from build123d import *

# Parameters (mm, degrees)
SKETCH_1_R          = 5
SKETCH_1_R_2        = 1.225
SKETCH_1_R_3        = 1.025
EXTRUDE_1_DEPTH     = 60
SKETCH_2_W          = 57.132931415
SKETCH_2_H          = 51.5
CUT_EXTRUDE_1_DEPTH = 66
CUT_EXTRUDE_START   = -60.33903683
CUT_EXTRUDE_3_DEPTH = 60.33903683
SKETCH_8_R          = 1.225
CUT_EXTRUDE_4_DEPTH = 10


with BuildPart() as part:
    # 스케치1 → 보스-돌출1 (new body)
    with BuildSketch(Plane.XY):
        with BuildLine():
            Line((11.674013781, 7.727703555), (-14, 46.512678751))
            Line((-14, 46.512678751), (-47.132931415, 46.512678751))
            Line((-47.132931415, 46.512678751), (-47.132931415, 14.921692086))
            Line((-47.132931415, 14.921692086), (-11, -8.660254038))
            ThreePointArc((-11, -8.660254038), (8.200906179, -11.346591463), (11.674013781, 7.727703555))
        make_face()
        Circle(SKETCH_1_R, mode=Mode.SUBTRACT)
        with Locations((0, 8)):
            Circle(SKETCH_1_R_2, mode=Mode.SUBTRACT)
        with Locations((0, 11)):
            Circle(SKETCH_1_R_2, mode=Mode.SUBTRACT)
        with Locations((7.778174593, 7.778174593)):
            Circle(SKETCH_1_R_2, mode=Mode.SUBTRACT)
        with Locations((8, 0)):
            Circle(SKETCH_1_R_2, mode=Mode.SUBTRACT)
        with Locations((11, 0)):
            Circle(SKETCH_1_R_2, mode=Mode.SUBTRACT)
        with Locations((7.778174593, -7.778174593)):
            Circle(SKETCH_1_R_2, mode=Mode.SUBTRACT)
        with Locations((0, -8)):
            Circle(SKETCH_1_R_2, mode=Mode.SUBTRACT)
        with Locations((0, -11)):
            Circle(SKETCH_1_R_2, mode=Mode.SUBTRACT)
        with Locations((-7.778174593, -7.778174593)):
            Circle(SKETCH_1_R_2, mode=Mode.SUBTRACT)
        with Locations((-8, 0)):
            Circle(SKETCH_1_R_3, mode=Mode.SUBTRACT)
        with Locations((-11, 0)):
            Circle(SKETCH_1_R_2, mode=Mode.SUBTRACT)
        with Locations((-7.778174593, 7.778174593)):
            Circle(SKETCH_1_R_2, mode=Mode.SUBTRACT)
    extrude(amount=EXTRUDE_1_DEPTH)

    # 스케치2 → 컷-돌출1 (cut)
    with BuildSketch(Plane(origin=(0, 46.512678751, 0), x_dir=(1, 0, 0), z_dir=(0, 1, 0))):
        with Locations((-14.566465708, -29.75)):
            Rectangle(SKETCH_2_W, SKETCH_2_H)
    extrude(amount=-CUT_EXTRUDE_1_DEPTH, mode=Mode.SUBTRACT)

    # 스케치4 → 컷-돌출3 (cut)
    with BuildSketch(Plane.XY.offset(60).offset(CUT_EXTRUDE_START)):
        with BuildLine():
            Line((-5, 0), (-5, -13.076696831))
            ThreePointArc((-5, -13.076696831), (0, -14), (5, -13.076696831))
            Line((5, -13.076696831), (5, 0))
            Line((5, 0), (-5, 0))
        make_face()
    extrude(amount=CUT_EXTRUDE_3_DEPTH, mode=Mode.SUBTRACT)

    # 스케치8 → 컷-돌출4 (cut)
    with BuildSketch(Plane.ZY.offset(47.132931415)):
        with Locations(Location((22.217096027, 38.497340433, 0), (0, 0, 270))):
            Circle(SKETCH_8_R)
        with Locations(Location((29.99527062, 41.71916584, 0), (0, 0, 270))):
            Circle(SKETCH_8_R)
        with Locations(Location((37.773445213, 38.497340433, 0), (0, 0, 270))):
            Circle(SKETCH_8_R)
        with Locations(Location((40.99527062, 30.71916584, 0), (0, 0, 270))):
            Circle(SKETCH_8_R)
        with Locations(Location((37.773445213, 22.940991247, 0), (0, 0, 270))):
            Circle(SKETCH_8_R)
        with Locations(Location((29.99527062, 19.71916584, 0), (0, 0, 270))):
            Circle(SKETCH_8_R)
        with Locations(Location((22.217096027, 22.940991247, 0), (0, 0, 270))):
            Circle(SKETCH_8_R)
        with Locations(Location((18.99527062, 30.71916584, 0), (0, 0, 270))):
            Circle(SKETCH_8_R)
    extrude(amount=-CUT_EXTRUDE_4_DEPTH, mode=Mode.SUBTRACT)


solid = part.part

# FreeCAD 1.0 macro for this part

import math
import FreeCAD as App
import Part
import Sketcher

doc = App.newDocument("Part")
body = doc.addObject("PartDesign::Body", "Body")

# Sketch on XY plane
sketch1 = body.newObject("Sketcher::SketchObject", "Sketch")
sketch1.AttachmentSupport = (doc.getObject("XY_Plane"), [""])
sketch1.MapMode = "FlatFace"
sketch1.addGeometry(Part.LineSegment(App.Vector(11.7, 7.7, 0), App.Vector(-14, 46.5, 0)), False)
sketch1.addGeometry(Part.LineSegment(App.Vector(-14, 46.5, 0), App.Vector(-47.1, 46.5, 0)), False)
sketch1.addGeometry(Part.LineSegment(App.Vector(-47.1, 46.5, 0), App.Vector(-47.1, 14.9, 0)), False)
sketch1.addGeometry(Part.LineSegment(App.Vector(-47.1, 14.9, 0), App.Vector(-11, -8.7, 0)), False)
sketch1.addGeometry(Part.ArcOfCircle(Part.Circle(App.Vector(0, 0, 0), App.Vector(0, 0, 1), 14), math.radians(-142), math.radians(34)), False)
sketch1.addGeometry(Part.Circle(App.Vector(-7.8, -7.8, 0), App.Vector(0, 0, 1), 1.2), False)
sketch1.addGeometry(Part.Circle(App.Vector(0, -11, 0), App.Vector(0, 0, 1), 1.2), False)
sketch1.addGeometry(Part.Circle(App.Vector(0, -8, 0), App.Vector(0, 0, 1), 1.2), False)
sketch1.addGeometry(Part.Circle(App.Vector(7.8, -7.8, 0), App.Vector(0, 0, 1), 1.2), False)
sketch1.addGeometry(Part.Circle(App.Vector(-11, 0, 0), App.Vector(0, 0, 1), 1.2), False)
sketch1.addGeometry(Part.Circle(App.Vector(-8, 0, 0), App.Vector(0, 0, 1), 1), False)
sketch1.addGeometry(Part.Circle(App.Vector(0, 0, 0), App.Vector(0, 0, 1), 5), False)
sketch1.addGeometry(Part.Circle(App.Vector(-7.8, 7.8, 0), App.Vector(0, 0, 1), 1.2), False)
sketch1.addGeometry(Part.Circle(App.Vector(0, 8, 0), App.Vector(0, 0, 1), 1.2), False)
sketch1.addGeometry(Part.Circle(App.Vector(0, 11, 0), App.Vector(0, 0, 1), 1.2), False)
sketch1.addGeometry(Part.Circle(App.Vector(8, 0, 0), App.Vector(0, 0, 1), 1.2), False)
sketch1.addGeometry(Part.Circle(App.Vector(11, 0, 0), App.Vector(0, 0, 1), 1.2), False)
sketch1.addGeometry(Part.Circle(App.Vector(7.8, 7.8, 0), App.Vector(0, 0, 1), 1.2), False)
sketch1.addConstraint(Sketcher.Constraint("Coincident", 0, 2, 1, 1))
sketch1.addConstraint(Sketcher.Constraint("Coincident", 1, 2, 2, 1))
sketch1.addConstraint(Sketcher.Constraint("Coincident", 2, 2, 3, 1))
sketch1.addConstraint(Sketcher.Constraint("Coincident", 3, 2, 4, 1))
sketch1.addConstraint(Sketcher.Constraint("Tangent", 4, 2, 0, 1))
sketch1.addConstraint(Sketcher.Constraint("Horizontal", 1))
sketch1.addConstraint(Sketcher.Constraint("Vertical", 2))
sketch1.addConstraint(Sketcher.Constraint("Coincident", 4, 3, -1, 1))
sketch1.addConstraint(Sketcher.Constraint("Coincident", 11, 3, -1, 1))
sketch1.addConstraint(Sketcher.Constraint("Equal", 5, 6))
sketch1.addConstraint(Sketcher.Constraint("Equal", 6, 7))
sketch1.addConstraint(Sketcher.Constraint("Equal", 7, 8))
sketch1.addConstraint(Sketcher.Constraint("Equal", 8, 9))
sketch1.addConstraint(Sketcher.Constraint("Equal", 9, 12))
sketch1.addConstraint(Sketcher.Constraint("Equal", 12, 13))
sketch1.addConstraint(Sketcher.Constraint("Equal", 13, 14))
sketch1.addConstraint(Sketcher.Constraint("Equal", 14, 15))
sketch1.addConstraint(Sketcher.Constraint("Equal", 15, 16))
sketch1.addConstraint(Sketcher.Constraint("Equal", 16, 17))
sketch1.addConstraint(Sketcher.Constraint("Symmetric", 8, 3, 12, 3, -1, 1))
sketch1.addConstraint(Sketcher.Constraint("Symmetric", 7, 3, 13, 3, -1, 1))
sketch1.addConstraint(Sketcher.Constraint("Symmetric", 6, 3, 14, 3, -1, 1))
sketch1.addConstraint(Sketcher.Constraint("Symmetric", 10, 3, 15, 3, -1, 1))
sketch1.addConstraint(Sketcher.Constraint("Symmetric", 9, 3, 16, 3, -1, 1))
sketch1.addConstraint(Sketcher.Constraint("Symmetric", 5, 3, 17, 3, -1, 1))
sketch1.addConstraint(Sketcher.Constraint("Symmetric", 5, 3, 8, 3, -2))
sketch1.addConstraint(Sketcher.Constraint("PointOnObject", 6, 3, -2))
sketch1.addConstraint(Sketcher.Constraint("PointOnObject", 7, 3, -2))
sketch1.addConstraint(Sketcher.Constraint("PointOnObject", 9, 3, -1))
sketch1.addConstraint(Sketcher.Constraint("PointOnObject", 10, 3, -1))
sketch1.addConstraint(Sketcher.Constraint("Vertical", 9, 3, 3, 2))
sketch1.addConstraint(Sketcher.Constraint("Diameter", 11, 10.0))
sketch1.addConstraint(Sketcher.Constraint("Radius", 4, 14.0))
sketch1.addConstraint(Sketcher.Constraint("Diameter", 5, 2.45))
sketch1.addConstraint(Sketcher.Constraint("Diameter", 10, 2.05))
sketch1.addConstraint(Sketcher.Constraint("DistanceY", 6, 3, -1, 1, 11.0))
sketch1.addConstraint(Sketcher.Constraint("DistanceY", 7, 3, -1, 1, 8.0))
sketch1.addConstraint(Sketcher.Constraint("DistanceX", 9, 3, -1, 1, 11.0))
sketch1.addConstraint(Sketcher.Constraint("DistanceX", 10, 3, -1, 1, 8.0))
sketch1.addConstraint(Sketcher.Constraint("DistanceX", 0, 2, -1, 1, 14.0))
sketch1.addConstraint(Sketcher.Constraint("DistanceX", 1, 2, 1, 1, 33.132931))
sketch1.addConstraint(Sketcher.Constraint("Distance", 0, 46.512679))
sketch1.addConstraint(Sketcher.Constraint("DistanceY", 2, 2, 2, 1, 31.590987))
sketch1.addConstraint(Sketcher.Constraint("DistanceX", 5, 3, 8, 3, 15.556349))
sketch1.addConstraint(Sketcher.Constraint("DistanceY", 5, 3, 12, 3, 15.556349))
pad1 = body.newObject("PartDesign::Pad", "Pad")
pad1.Profile = sketch1
pad1.Length = 60

# Sketch on XZ plane
sketch2 = body.newObject("Sketcher::SketchObject", "Sketch001")
sketch2.AttachmentSupport = (doc.getObject("XZ_Plane"), [""])
sketch2.MapMode = "FlatFace"
sketch2.AttachmentOffset = App.Placement(App.Vector(0, 0, -46.512679), App.Rotation())
sketch2.addGeometry(Part.LineSegment(App.Vector(-43, 4, 0), App.Vector(-43, 56, 0)), False)
sketch2.addGeometry(Part.LineSegment(App.Vector(-43, 56, 0), App.Vector(14, 56, 0)), False)
sketch2.addGeometry(Part.LineSegment(App.Vector(14, 56, 0), App.Vector(14, 4, 0)), False)
sketch2.addGeometry(Part.LineSegment(App.Vector(14, 4, 0), App.Vector(-43, 4, 0)), False)
sketch2.addConstraint(Sketcher.Constraint("Coincident", 0, 2, 1, 1))
sketch2.addConstraint(Sketcher.Constraint("Coincident", 1, 2, 2, 1))
sketch2.addConstraint(Sketcher.Constraint("Coincident", 2, 2, 3, 1))
sketch2.addConstraint(Sketcher.Constraint("Coincident", 3, 2, 0, 1))
sketch2.addConstraint(Sketcher.Constraint("Vertical", 0))
sketch2.addConstraint(Sketcher.Constraint("Horizontal", 1))
sketch2.addConstraint(Sketcher.Constraint("Vertical", 2))
sketch2.addConstraint(Sketcher.Constraint("Horizontal", 3))
sketch2.addConstraint(Sketcher.Constraint("DistanceY", 0, 1, 0, 2, 51.5))
sketch2.addConstraint(Sketcher.Constraint("DistanceX", -1, 1, 1, 2, 14.0))
sketch2.addConstraint(Sketcher.Constraint("DistanceY", -1, 1, 2, 2, 4.0))
sketch2.addConstraint(Sketcher.Constraint("DistanceX", 1, 1, 1, 2, 57.132931))
pocket1 = body.newObject("PartDesign::Pocket", "Pocket")
pocket1.Profile = sketch2
pocket1.Length = 66
pocket1.Reversed = True

# Sketch on XY plane
sketch3 = body.newObject("Sketcher::SketchObject", "Sketch002")
sketch3.AttachmentSupport = (doc.getObject("XY_Plane"), [""])
sketch3.MapMode = "FlatFace"
sketch3.AttachmentOffset = App.Placement(App.Vector(0, 0, -0.339037), App.Rotation())
sketch3.addGeometry(Part.LineSegment(App.Vector(-5, 0, 0), App.Vector(-5, -13, 0)), False)
sketch3.addGeometry(Part.ArcOfCircle(Part.Circle(App.Vector(0, 0, 0), App.Vector(0, 0, 1), 14), math.radians(-111), math.radians(-69)), False)
sketch3.addGeometry(Part.LineSegment(App.Vector(5, -13, 0), App.Vector(5, 0, 0)), False)
sketch3.addGeometry(Part.LineSegment(App.Vector(5, 0, 0), App.Vector(-5, 0, 0)), False)
sketch3.addConstraint(Sketcher.Constraint("Coincident", 0, 2, 1, 1))
sketch3.addConstraint(Sketcher.Constraint("Coincident", 1, 2, 2, 1))
sketch3.addConstraint(Sketcher.Constraint("Coincident", 2, 2, 3, 1))
sketch3.addConstraint(Sketcher.Constraint("Coincident", 3, 2, 0, 1))
sketch3.addConstraint(Sketcher.Constraint("Vertical", 0))
sketch3.addConstraint(Sketcher.Constraint("Vertical", 2))
sketch3.addConstraint(Sketcher.Constraint("Horizontal", 3))
sketch3.addConstraint(Sketcher.Constraint("Coincident", 1, 3, -1, 1))
sketch3.addConstraint(Sketcher.Constraint("Symmetric", 2, 2, 3, 2, -1, 1))
sketch3.addConstraint(Sketcher.Constraint("Radius", 1, 14.0))
sketch3.addConstraint(Sketcher.Constraint("DistanceX", 3, 2, 3, 1, 10.0))
pocket2 = body.newObject("PartDesign::Pocket", "Pocket001")
pocket2.Profile = sketch3
pocket2.Length = 60.339037
pocket2.Reversed = True

# Sketch on YZ plane
sketch4 = body.newObject("Sketcher::SketchObject", "Sketch003")
sketch4.AttachmentSupport = (doc.getObject("YZ_Plane"), [""])
sketch4.MapMode = "FlatFace"
sketch4.AttachmentOffset = App.Placement(App.Vector(0, 0, -47.132931), App.Rotation())
sketch4.addGeometry(Part.Circle(App.Vector(38.5, 22.2, 0), App.Vector(0, 0, 1), 1.2), False)
sketch4.addGeometry(Part.Circle(App.Vector(41.7, 30, 0), App.Vector(0, 0, 1), 1.2), False)
sketch4.addGeometry(Part.Circle(App.Vector(38.5, 37.8, 0), App.Vector(0, 0, 1), 1.2), False)
sketch4.addGeometry(Part.Circle(App.Vector(30.7, 41, 0), App.Vector(0, 0, 1), 1.2), False)
sketch4.addGeometry(Part.Circle(App.Vector(22.9, 37.8, 0), App.Vector(0, 0, 1), 1.2), False)
sketch4.addGeometry(Part.Circle(App.Vector(19.7, 30, 0), App.Vector(0, 0, 1), 1.2), False)
sketch4.addGeometry(Part.Circle(App.Vector(22.9, 22.2, 0), App.Vector(0, 0, 1), 1.2), False)
sketch4.addGeometry(Part.Circle(App.Vector(30.7, 19, 0), App.Vector(0, 0, 1), 1.2), False)
sketch4.addConstraint(Sketcher.Constraint("Equal", 0, 1))
sketch4.addConstraint(Sketcher.Constraint("Equal", 1, 2))
sketch4.addConstraint(Sketcher.Constraint("Equal", 2, 3))
sketch4.addConstraint(Sketcher.Constraint("Equal", 3, 4))
sketch4.addConstraint(Sketcher.Constraint("Equal", 4, 5))
sketch4.addConstraint(Sketcher.Constraint("Equal", 5, 6))
sketch4.addConstraint(Sketcher.Constraint("Equal", 6, 7))
sketch4.addConstraint(Sketcher.Constraint("Horizontal", 2, 3, 4, 3))
sketch4.addConstraint(Sketcher.Constraint("Horizontal", 1, 3, 5, 3))
sketch4.addConstraint(Sketcher.Constraint("Horizontal", 0, 3, 6, 3))
sketch4.addConstraint(Sketcher.Constraint("Vertical", 0, 3, 2, 3))
sketch4.addConstraint(Sketcher.Constraint("Vertical", 4, 3, 6, 3))
sketch4.addConstraint(Sketcher.Constraint("Vertical", 3, 3, 7, 3))
sketch4.addConstraint(Sketcher.Constraint("Diameter", 0, 2.45))
sketch4.addConstraint(Sketcher.Constraint("DistanceX", 3, 3, 1, 3, 11.0))
sketch4.addConstraint(Sketcher.Constraint("DistanceY", 1, 3, 3, 3, 11.0))
sketch4.addConstraint(Sketcher.Constraint("DistanceX", 5, 3, 3, 3, 11.0))
sketch4.addConstraint(Sketcher.Constraint("DistanceY", 7, 3, 5, 3, 11.0))
sketch4.addConstraint(Sketcher.Constraint("DistanceX", -1, 1, 0, 3, 38.49734))
sketch4.addConstraint(Sketcher.Constraint("DistanceY", -1, 1, 1, 3, 29.995271))
sketch4.addConstraint(Sketcher.Constraint("DistanceX", -1, 1, 4, 3, 22.940991))
sketch4.addConstraint(Sketcher.Constraint("DistanceY", 0, 3, 2, 3, 15.556349))
sketch4.addConstraint(Sketcher.Constraint("DistanceY", -1, 1, 0, 3, 22.217096))
sketch4.addConstraint(Sketcher.Constraint("DistanceX", -1, 1, 1, 3, 41.719166))
pocket3 = body.newObject("PartDesign::Pocket", "Pocket002")
pocket3.Profile = sketch4
pocket3.Length = 10
pocket3.Reversed = True

doc.recompute()
